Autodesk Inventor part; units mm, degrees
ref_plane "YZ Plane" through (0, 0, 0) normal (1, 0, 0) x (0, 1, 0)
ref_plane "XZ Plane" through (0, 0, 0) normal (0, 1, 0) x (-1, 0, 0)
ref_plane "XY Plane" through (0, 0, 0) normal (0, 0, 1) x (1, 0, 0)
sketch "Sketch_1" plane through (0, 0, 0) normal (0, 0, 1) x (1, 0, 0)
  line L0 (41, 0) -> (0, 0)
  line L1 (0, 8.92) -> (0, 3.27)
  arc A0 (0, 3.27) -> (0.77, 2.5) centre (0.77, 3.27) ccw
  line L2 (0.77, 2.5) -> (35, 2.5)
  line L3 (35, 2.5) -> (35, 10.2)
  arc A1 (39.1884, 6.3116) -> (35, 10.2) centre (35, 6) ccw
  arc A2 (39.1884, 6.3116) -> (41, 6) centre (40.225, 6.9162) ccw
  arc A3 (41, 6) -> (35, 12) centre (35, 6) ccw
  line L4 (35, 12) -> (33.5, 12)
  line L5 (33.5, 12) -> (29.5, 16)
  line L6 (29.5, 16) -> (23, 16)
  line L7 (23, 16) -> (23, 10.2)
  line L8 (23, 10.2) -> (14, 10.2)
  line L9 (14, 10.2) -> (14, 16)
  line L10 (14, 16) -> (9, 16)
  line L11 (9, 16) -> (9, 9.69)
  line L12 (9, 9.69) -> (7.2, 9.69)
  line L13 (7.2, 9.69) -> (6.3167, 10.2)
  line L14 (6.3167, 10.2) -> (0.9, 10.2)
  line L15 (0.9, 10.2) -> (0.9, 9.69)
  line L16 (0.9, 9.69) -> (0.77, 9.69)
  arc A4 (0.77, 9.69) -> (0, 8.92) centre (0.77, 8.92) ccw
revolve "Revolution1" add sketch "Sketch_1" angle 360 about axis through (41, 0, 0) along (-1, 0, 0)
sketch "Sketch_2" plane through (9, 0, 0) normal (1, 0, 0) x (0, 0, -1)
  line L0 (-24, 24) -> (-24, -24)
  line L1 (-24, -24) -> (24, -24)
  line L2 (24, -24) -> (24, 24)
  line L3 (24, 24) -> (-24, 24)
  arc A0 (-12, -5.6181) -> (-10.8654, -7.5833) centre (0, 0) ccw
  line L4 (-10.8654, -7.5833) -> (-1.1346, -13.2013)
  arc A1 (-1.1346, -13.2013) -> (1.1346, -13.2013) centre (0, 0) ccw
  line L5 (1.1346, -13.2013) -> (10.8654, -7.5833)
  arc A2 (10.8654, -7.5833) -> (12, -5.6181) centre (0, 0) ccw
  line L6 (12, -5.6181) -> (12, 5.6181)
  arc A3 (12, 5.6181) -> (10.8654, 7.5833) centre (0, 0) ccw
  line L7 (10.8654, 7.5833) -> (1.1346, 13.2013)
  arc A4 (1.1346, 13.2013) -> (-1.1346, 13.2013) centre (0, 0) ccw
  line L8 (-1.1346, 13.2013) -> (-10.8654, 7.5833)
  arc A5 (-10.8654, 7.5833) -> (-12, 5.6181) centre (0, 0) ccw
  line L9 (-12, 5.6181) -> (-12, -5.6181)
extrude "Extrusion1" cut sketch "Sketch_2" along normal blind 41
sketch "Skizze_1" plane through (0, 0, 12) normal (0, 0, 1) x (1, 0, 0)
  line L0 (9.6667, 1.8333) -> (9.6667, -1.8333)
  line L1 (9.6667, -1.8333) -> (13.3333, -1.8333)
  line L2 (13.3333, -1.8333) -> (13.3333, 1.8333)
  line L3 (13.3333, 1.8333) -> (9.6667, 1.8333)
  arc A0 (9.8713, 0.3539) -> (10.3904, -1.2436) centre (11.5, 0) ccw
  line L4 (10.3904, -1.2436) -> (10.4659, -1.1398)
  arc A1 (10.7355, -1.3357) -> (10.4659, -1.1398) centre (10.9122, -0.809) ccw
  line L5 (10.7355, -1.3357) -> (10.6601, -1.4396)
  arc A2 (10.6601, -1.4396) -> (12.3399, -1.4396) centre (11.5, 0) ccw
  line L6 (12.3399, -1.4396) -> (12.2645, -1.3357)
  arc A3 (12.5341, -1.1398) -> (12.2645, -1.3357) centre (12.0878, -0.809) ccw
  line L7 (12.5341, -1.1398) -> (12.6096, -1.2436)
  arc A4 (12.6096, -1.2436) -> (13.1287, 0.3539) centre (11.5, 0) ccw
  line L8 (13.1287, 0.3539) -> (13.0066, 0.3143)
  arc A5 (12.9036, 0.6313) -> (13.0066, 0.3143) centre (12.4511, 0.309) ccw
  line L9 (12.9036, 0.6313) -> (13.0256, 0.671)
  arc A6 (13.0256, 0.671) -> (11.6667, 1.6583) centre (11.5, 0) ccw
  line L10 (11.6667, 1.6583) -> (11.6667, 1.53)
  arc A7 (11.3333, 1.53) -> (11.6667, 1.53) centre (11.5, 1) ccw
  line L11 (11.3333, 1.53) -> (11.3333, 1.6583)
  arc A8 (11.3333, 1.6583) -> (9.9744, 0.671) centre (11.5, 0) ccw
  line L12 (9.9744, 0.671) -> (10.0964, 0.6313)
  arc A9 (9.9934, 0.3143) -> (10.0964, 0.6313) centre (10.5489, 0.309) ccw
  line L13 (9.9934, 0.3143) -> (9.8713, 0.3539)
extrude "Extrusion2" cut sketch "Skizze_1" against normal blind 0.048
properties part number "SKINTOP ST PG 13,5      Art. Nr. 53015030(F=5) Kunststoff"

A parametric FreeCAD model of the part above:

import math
import FreeCAD as App
import Part
import Sketcher

V = App.Vector
Q = App.Units.Quantity

doc = App.newDocument("Part")
body = doc.addObject("PartDesign::Body", "Body")

# Sketch on XY plane
sketch1 = body.newObject("Sketcher::SketchObject", "Sketch")
sketch1.AttachmentSupport = (doc.getObject("XY_Plane"), [""])
sketch1.MapMode = "FlatFace"
sketch1.addGeometry(Part.ArcOfCircle(Part.Circle(V(0.77, 8.92, 0), V(0, 0, 1), 0.77), math.radians(90), math.radians(180)), False)
sketch1.addGeometry(Part.LineSegment(V(0, 8.92, 0), V(0, 3.27, 0)), False)
sketch1.addGeometry(Part.ArcOfCircle(Part.Circle(V(0.77, 3.27, 0), V(0, 0, 1), 0.77), math.radians(180), math.radians(270)), False)
sketch1.addGeometry(Part.LineSegment(V(0.77, 2.5, 0), V(35, 2.5, 0)), False)
sketch1.addGeometry(Part.LineSegment(V(35, 2.5, 0), V(35, 10.2, 0)), False)
sketch1.addGeometry(Part.ArcOfCircle(Part.Circle(V(35, 6, 0), V(0, 0, 1), 4.2), math.radians(4), math.radians(90)), False)
sketch1.addGeometry(Part.ArcOfCircle(Part.Circle(V(40.23, 6.92, 0), V(0, 0, 1), 1.2), math.radians(-150), math.radians(-50)), False)
sketch1.addGeometry(Part.ArcOfCircle(Part.Circle(V(35, 6, 0), V(0, 0, 1), 6), math.radians(0), math.radians(90)), False)
sketch1.addGeometry(Part.LineSegment(V(35, 12, 0), V(33.5, 12, 0)), False)
sketch1.addGeometry(Part.LineSegment(V(33.5, 12, 0), V(29.5, 16, 0)), False)
sketch1.addGeometry(Part.LineSegment(V(29.5, 16, 0), V(23, 16, 0)), False)
sketch1.addGeometry(Part.LineSegment(V(23, 16, 0), V(23, 10.2, 0)), False)
sketch1.addGeometry(Part.LineSegment(V(23, 10.2, 0), V(14, 10.2, 0)), False)
sketch1.addGeometry(Part.LineSegment(V(14, 10.2, 0), V(14, 16, 0)), False)
sketch1.addGeometry(Part.LineSegment(V(14, 16, 0), V(9, 16, 0)), False)
sketch1.addGeometry(Part.LineSegment(V(9, 16, 0), V(9, 9.69, 0)), False)
sketch1.addGeometry(Part.LineSegment(V(9, 9.69, 0), V(7.2, 9.69, 0)), False)
sketch1.addGeometry(Part.LineSegment(V(7.2, 9.69, 0), V(6.32, 10.2, 0)), False)
sketch1.addGeometry(Part.LineSegment(V(6.32, 10.2, 0), V(0.9, 10.2, 0)), False)
sketch1.addGeometry(Part.LineSegment(V(0.9, 10.2, 0), V(0.9, 9.69, 0)), False)
sketch1.addGeometry(Part.LineSegment(V(0.9, 9.69, 0), V(0.77, 9.69, 0)), False)
sketch1.addConstraint(Sketcher.Constraint("Tangent", 0, 2, 1, 1))
sketch1.addConstraint(Sketcher.Constraint("Tangent", 1, 2, 2, 1))
sketch1.addConstraint(Sketcher.Constraint("Tangent", 2, 2, 3, 1))
sketch1.addConstraint(Sketcher.Constraint("Coincident", 3, 2, 4, 1))
sketch1.addConstraint(Sketcher.Constraint("Coincident", 4, 2, 5, 2))
sketch1.addConstraint(Sketcher.Constraint("Coincident", 5, 1, 6, 1))
sketch1.addConstraint(Sketcher.Constraint("Coincident", 6, 2, 7, 1))
sketch1.addConstraint(Sketcher.Constraint("Tangent", 7, 2, 8, 1))
sketch1.addConstraint(Sketcher.Constraint("Coincident", 8, 2, 9, 1))
sketch1.addConstraint(Sketcher.Constraint("Coincident", 9, 2, 10, 1))
sketch1.addConstraint(Sketcher.Constraint("Coincident", 10, 2, 11, 1))
sketch1.addConstraint(Sketcher.Constraint("Coincident", 11, 2, 12, 1))
sketch1.addConstraint(Sketcher.Constraint("Coincident", 12, 2, 13, 1))
sketch1.addConstraint(Sketcher.Constraint("Coincident", 13, 2, 14, 1))
sketch1.addConstraint(Sketcher.Constraint("Coincident", 14, 2, 15, 1))
sketch1.addConstraint(Sketcher.Constraint("Coincident", 15, 2, 16, 1))
sketch1.addConstraint(Sketcher.Constraint("Coincident", 16, 2, 17, 1))
sketch1.addConstraint(Sketcher.Constraint("Coincident", 17, 2, 18, 1))
sketch1.addConstraint(Sketcher.Constraint("Coincident", 18, 2, 19, 1))
sketch1.addConstraint(Sketcher.Constraint("Coincident", 19, 2, 20, 1))
sketch1.addConstraint(Sketcher.Constraint("Tangent", 20, 2, 0, 1))
sketch1.addConstraint(Sketcher.Constraint("Vertical", 1))
sketch1.addConstraint(Sketcher.Constraint("Horizontal", 3))
sketch1.addConstraint(Sketcher.Constraint("Vertical", 4))
sketch1.addConstraint(Sketcher.Constraint("Horizontal", 8))
sketch1.addConstraint(Sketcher.Constraint("Horizontal", 10))
sketch1.addConstraint(Sketcher.Constraint("Vertical", 11))
sketch1.addConstraint(Sketcher.Constraint("Horizontal", 12))
sketch1.addConstraint(Sketcher.Constraint("Vertical", 13))
sketch1.addConstraint(Sketcher.Constraint("Horizontal", 14))
sketch1.addConstraint(Sketcher.Constraint("Vertical", 15))
sketch1.addConstraint(Sketcher.Constraint("Horizontal", 16))
sketch1.addConstraint(Sketcher.Constraint("Horizontal", 18))
sketch1.addConstraint(Sketcher.Constraint("Vertical", 19))
sketch1.addConstraint(Sketcher.Constraint("Horizontal", 20))
sketch1.addConstraint(Sketcher.Constraint("Coincident", 7, 3, 5, 3))
sketch1.addConstraint(Sketcher.Constraint("Equal", 0, 2))
sketch1.addConstraint(Sketcher.Constraint("PointOnObject", 0, 2, -2))
sketch1.addConstraint(Sketcher.Constraint("Horizontal", 7, 3, 6, 2))
sketch1.addConstraint(Sketcher.Constraint("Horizontal", 4, 2, 11, 2))
sketch1.addConstraint(Sketcher.Constraint("Horizontal", 10, 2, 13, 2))
sketch1.addConstraint(Sketcher.Constraint("Horizontal", 12, 2, 17, 2))
sketch1.addConstraint(Sketcher.Constraint("Horizontal", 16, 2, 19, 2))
sketch1.addConstraint(Sketcher.Constraint("Vertical", 7, 3, 3, 2))
sketch1.addConstraint(Sketcher.Constraint("Radius", 7, Q("6 mm")))
sketch1.addConstraint(Sketcher.Constraint("Radius", 5, Q("4.2 mm")))
sketch1.addConstraint(Sketcher.Constraint("Radius", 6, Q("1.2 mm")))
sketch1.addConstraint(Sketcher.Constraint("DistanceX", 12, 2, 12, 1, Q("9 mm")))
sketch1.addConstraint(Sketcher.Constraint("DistanceX", 14, 2, 14, 1, Q("5 mm")))
sketch1.addConstraint(Sketcher.Constraint("Angle", 9, Q("135 deg")))
sketch1.addConstraint(Sketcher.Constraint("Radius", 0, Q("0.77 mm")))
sketch1.addConstraint(Sketcher.Constraint("DistanceX", 8, 2, 8, 1, Q("1.5 mm")))
sketch1.addConstraint(Sketcher.Constraint("DistanceX", 10, 2, 10, 1, Q("6.5 mm")))
sketch1.addConstraint(Sketcher.Constraint("DistanceX", 16, 2, 16, 1, Q("1.8 mm")))
sketch1.addConstraint(Sketcher.Constraint("DistanceY", 4, 1, 4, 2, Q("7.7 mm")))
sketch1.addConstraint(Sketcher.Constraint("DistanceY", 11, 2, 11, 1, Q("5.8 mm")))
sketch1.addConstraint(Sketcher.Constraint("DistanceX", -1, 1, 5, 3, Q("35 mm")))
sketch1.addConstraint(Sketcher.Constraint("DistanceY", -1, 1, 5, 3, Q("6 mm")))
sketch1.addConstraint(Sketcher.Constraint("DistanceX", 20, 2, 20, 1, Q("0.13 mm")))
sketch1.addConstraint(Sketcher.Constraint("DistanceY", 1, 2, 1, 1, Q("5.65 mm")))
sketch1.addConstraint(Sketcher.Constraint("Distance", 17, Q("1.02 mm")))
sketch1.addConstraint(Sketcher.Constraint("DistanceX", -1, 1, 6, 3, Q("40.225 mm")))
revolution = body.newObject("PartDesign::Revolution", "Revolution")
revolution.Profile = sketch1
revolution.ReferenceAxis = (sketch1, ["H_Axis"])
revolution.Angle = 360

# Sketch on YZ plane
sketch2 = body.newObject("Sketcher::SketchObject", "Sketch001")
sketch2.AttachmentSupport = (doc.getObject("YZ_Plane"), [""])
sketch2.MapMode = "FlatFace"
sketch2.AttachmentOffset = App.Placement(V(0, 0, 9), App.Rotation())
sketch2.addGeometry(Part.LineSegment(V(24, -24, 0), V(24, 24, 0)), False)
sketch2.addGeometry(Part.LineSegment(V(24, 24, 0), V(-24, 24, 0)), False)
sketch2.addGeometry(Part.LineSegment(V(-24, 24, 0), V(-24, -24, 0)), False)
sketch2.addGeometry(Part.LineSegment(V(-24, -24, 0), V(24, -24, 0)), False)
sketch2.addGeometry(Part.ArcOfCircle(Part.Circle(V(0, 0, 0), V(0, 0, 1), 13.3), math.radians(115.09), math.radians(124.91)), False)
sketch2.addGeometry(Part.LineSegment(V(-5.6, 12, 0), V(5.6, 12, 0)), False)
sketch2.addGeometry(Part.ArcOfCircle(Part.Circle(V(0, 0, 0), V(0, 0, 1), 13.2), math.radians(55.09), math.radians(64.91)), False)
sketch2.addGeometry(Part.LineSegment(V(7.6, 10.9, 0), V(13.2, 1.1, 0)), False)
sketch2.addGeometry(Part.ArcOfCircle(Part.Circle(V(0, 0, 0), V(0, 0, 1), 13.2), math.radians(-4.91), math.radians(4.91)), False)
sketch2.addGeometry(Part.LineSegment(V(13.2, -1.1, 0), V(7.6, -10.9, 0)), False)
sketch2.addGeometry(Part.ArcOfCircle(Part.Circle(V(0, 0, 0), V(0, 0, 1), 13.3), math.radians(-64.91), math.radians(-55.09)), False)
sketch2.addGeometry(Part.LineSegment(V(5.6, -12, 0), V(-5.6, -12, 0)), False)
sketch2.addGeometry(Part.ArcOfCircle(Part.Circle(V(0, 0, 0), V(0, 0, 1), 13.2), math.radians(-124.91), math.radians(-115.09)), False)
sketch2.addGeometry(Part.LineSegment(V(-7.6, -10.9, 0), V(-13.2, -1.1, 0)), False)
sketch2.addGeometry(Part.ArcOfCircle(Part.Circle(V(0, 0, 0), V(0, 0, 1), 13.2), math.radians(175.09), math.radians(184.91)), False)
sketch2.addGeometry(Part.LineSegment(V(-13.2, 1.1, 0), V(-7.6, 10.9, 0)), False)
sketch2.addConstraint(Sketcher.Constraint("Coincident", 0, 2, 1, 1))
sketch2.addConstraint(Sketcher.Constraint("Coincident", 1, 2, 2, 1))
sketch2.addConstraint(Sketcher.Constraint("Coincident", 2, 2, 3, 1))
sketch2.addConstraint(Sketcher.Constraint("Coincident", 3, 2, 0, 1))
sketch2.addConstraint(Sketcher.Constraint("Coincident", 4, 1, 5, 1))
sketch2.addConstraint(Sketcher.Constraint("Coincident", 5, 2, 6, 2))
sketch2.addConstraint(Sketcher.Constraint("Coincident", 6, 1, 7, 1))
sketch2.addConstraint(Sketcher.Constraint("Coincident", 7, 2, 8, 2))
sketch2.addConstraint(Sketcher.Constraint("Coincident", 8, 1, 9, 1))
sketch2.addConstraint(Sketcher.Constraint("Coincident", 9, 2, 10, 2))
sketch2.addConstraint(Sketcher.Constraint("Coincident", 10, 1, 11, 1))
sketch2.addConstraint(Sketcher.Constraint("Coincident", 11, 2, 12, 2))
sketch2.addConstraint(Sketcher.Constraint("Coincident", 12, 1, 13, 1))
sketch2.addConstraint(Sketcher.Constraint("Coincident", 13, 2, 14, 2))
sketch2.addConstraint(Sketcher.Constraint("Coincident", 14, 1, 15, 1))
sketch2.addConstraint(Sketcher.Constraint("Coincident", 15, 2, 4, 2))
sketch2.addConstraint(Sketcher.Constraint("Vertical", 0))
sketch2.addConstraint(Sketcher.Constraint("Horizontal", 1))
sketch2.addConstraint(Sketcher.Constraint("Vertical", 2))
sketch2.addConstraint(Sketcher.Constraint("Horizontal", 3))
sketch2.addConstraint(Sketcher.Constraint("Horizontal", 5))
sketch2.addConstraint(Sketcher.Constraint("Horizontal", 11))
sketch2.addConstraint(Sketcher.Constraint("Coincident", 8, 3, -1, 1))
sketch2.addConstraint(Sketcher.Constraint("Coincident", 14, 3, -1, 1))
sketch2.addConstraint(Sketcher.Constraint("Equal", 4, 10))
sketch2.addConstraint(Sketcher.Constraint("Equal", 6, 12))
sketch2.addConstraint(Sketcher.Constraint("Equal", 8, 14))
sketch2.addConstraint(Sketcher.Constraint("Symmetric", 4, 3, 10, 3, -1, 1))
sketch2.addConstraint(Sketcher.Constraint("Symmetric", 6, 3, 12, 3, -1, 1))
sketch2.addConstraint(Sketcher.Constraint("Symmetric", 0, 2, 2, 2, -1, 1))
sketch2.addConstraint(Sketcher.Constraint("Symmetric", 6, 3, 10, 3, -2))
sketch2.addConstraint(Sketcher.Constraint("Symmetric", 9, 2, 12, 1, -2))
sketch2.addConstraint(Sketcher.Constraint("Symmetric", 5, 2, 10, 1, -1))
sketch2.addConstraint(Sketcher.Constraint("Parallel", 7, 13))
sketch2.addConstraint(Sketcher.Constraint("Parallel", 9, 15))
sketch2.addConstraint(Sketcher.Constraint("Horizontal", 8, 1, 13, 2))
sketch2.addConstraint(Sketcher.Constraint("Horizontal", 7, 2, 14, 1))
sketch2.addConstraint(Sketcher.Constraint("Vertical", 7, 2, 8, 1))
sketch2.addConstraint(Sketcher.Constraint("Equal", 3, 0))
sketch2.addConstraint(Sketcher.Constraint("DistanceX", 1, 2, 1, 1, Q("48 mm")))
sketch2.addConstraint(Sketcher.Constraint("Angle", 7, Q("-60.0004 deg")))
sketch2.addConstraint(Sketcher.Constraint("Radius", 8, Q("13.25 mm")))
sketch2.addConstraint(Sketcher.Constraint("DistanceY", -1, 1, 4, 1, Q("12 mm")))
sketch2.addConstraint(Sketcher.Constraint("DistanceY", 9, 2, 7, 2, Q("12 mm")))
sketch2.addConstraint(Sketcher.Constraint("Radius", 4, Q("13.2516 mm")))
sketch2.addConstraint(Sketcher.Constraint("Radius", 6, Q("13.2484 mm")))
pocket1 = body.newObject("PartDesign::Pocket", "Pocket")
pocket1.Profile = sketch2
pocket1.Length = 41
pocket1.Reversed = True

# Sketch on XY plane
sketch3 = body.newObject("Sketcher::SketchObject", "Sketch002")
sketch3.AttachmentSupport = (doc.getObject("XY_Plane"), [""])
sketch3.MapMode = "FlatFace"
sketch3.AttachmentOffset = App.Placement(V(0, 0, 12), App.Rotation())
sketch3.addGeometry(Part.LineSegment(V(13.33, 1.83, 0), V(9.67, 1.83, 0)), False)
sketch3.addGeometry(Part.LineSegment(V(9.67, 1.83, 0), V(9.67, -1.83, 0)), False)
sketch3.addGeometry(Part.LineSegment(V(9.67, -1.83, 0), V(13.33, -1.83, 0)), False)
sketch3.addGeometry(Part.LineSegment(V(13.33, -1.83, 0), V(13.33, 1.83, 0)), False)
sketch3.addGeometry(Part.ArcOfCircle(Part.Circle(V(11.5, 0, 0), V(0, 0, 1), 1.67), math.radians(168), math.radians(228)), False)
sketch3.addGeometry(Part.LineSegment(V(9.87, 0.35, 0), V(9.99, 0.31, 0)), False)
sketch3.addGeometry(Part.ArcOfCircle(Part.Circle(V(10.55, 0.31, 0), V(0, 0, 1), 0.56), math.radians(179), math.radians(505)), False)
sketch3.addGeometry(Part.LineSegment(V(10.1, 0.63, 0), V(9.97, 0.67, 0)), False)
sketch3.addGeometry(Part.ArcOfCircle(Part.Circle(V(11.5, 0, 0), V(0, 0, 1), 1.67), math.radians(96), math.radians(156)), False)
sketch3.addGeometry(Part.LineSegment(V(11.33, 1.66, 0), V(11.33, 1.53, 0)), False)
sketch3.addGeometry(Part.ArcOfCircle(Part.Circle(V(11.5, 1, 0), V(0, 0, 1), 0.56), math.radians(107), math.radians(433)), False)
sketch3.addGeometry(Part.LineSegment(V(11.67, 1.53, 0), V(11.67, 1.66, 0)), False)
sketch3.addGeometry(Part.ArcOfCircle(Part.Circle(V(11.5, 0, 0), V(0, 0, 1), 1.67), math.radians(24), math.radians(84)), False)
sketch3.addGeometry(Part.LineSegment(V(13.03, 0.67, 0), V(12.9, 0.63, 0)), False)
sketch3.addGeometry(Part.ArcOfCircle(Part.Circle(V(12.45, 0.31, 0), V(0, 0, 1), 0.56), math.radians(35), math.radians(361)), False)
sketch3.addGeometry(Part.LineSegment(V(13.01, 0.31, 0), V(13.13, 0.35, 0)), False)
sketch3.addGeometry(Part.ArcOfCircle(Part.Circle(V(11.5, 0, 0), V(0, 0, 1), 1.67), math.radians(-48), math.radians(12)), False)
sketch3.addGeometry(Part.LineSegment(V(12.61, -1.24, 0), V(12.53, -1.14, 0)), False)
sketch3.addGeometry(Part.ArcOfCircle(Part.Circle(V(12.09, -0.81, 0), V(0, 0, 1), 0.56), math.radians(-37), math.radians(289)), False)
sketch3.addGeometry(Part.LineSegment(V(12.26, -1.34, 0), V(12.34, -1.44, 0)), False)
sketch3.addGeometry(Part.ArcOfCircle(Part.Circle(V(11.5, 0, 0), V(0, 0, 1), 1.67), math.radians(-120), math.radians(-60)), False)
sketch3.addGeometry(Part.LineSegment(V(10.66, -1.44, 0), V(10.74, -1.34, 0)), False)
sketch3.addGeometry(Part.ArcOfCircle(Part.Circle(V(10.91, -0.81, 0), V(0, 0, 1), 0.56), math.radians(-109), math.radians(217)), False)
sketch3.addGeometry(Part.LineSegment(V(10.47, -1.14, 0), V(10.39, -1.24, 0)), False)
sketch3.addConstraint(Sketcher.Constraint("Coincident", 0, 2, 1, 1))
sketch3.addConstraint(Sketcher.Constraint("Coincident", 1, 2, 2, 1))
sketch3.addConstraint(Sketcher.Constraint("Coincident", 2, 2, 3, 1))
sketch3.addConstraint(Sketcher.Constraint("Coincident", 3, 2, 0, 1))
sketch3.addConstraint(Sketcher.Constraint("Coincident", 4, 1, 5, 1))
sketch3.addConstraint(Sketcher.Constraint("Coincident", 5, 2, 6, 1))
sketch3.addConstraint(Sketcher.Constraint("Coincident", 6, 2, 7, 1))
sketch3.addConstraint(Sketcher.Constraint("Coincident", 7, 2, 8, 2))
sketch3.addConstraint(Sketcher.Constraint("Coincident", 8, 1, 9, 1))
sketch3.addConstraint(Sketcher.Constraint("Coincident", 9, 2, 10, 1))
sketch3.addConstraint(Sketcher.Constraint("Coincident", 10, 2, 11, 1))
sketch3.addConstraint(Sketcher.Constraint("Coincident", 11, 2, 12, 2))
sketch3.addConstraint(Sketcher.Constraint("Coincident", 12, 1, 13, 1))
sketch3.addConstraint(Sketcher.Constraint("Coincident", 13, 2, 14, 1))
sketch3.addConstraint(Sketcher.Constraint("Coincident", 14, 2, 15, 1))
sketch3.addConstraint(Sketcher.Constraint("Coincident", 15, 2, 16, 2))
sketch3.addConstraint(Sketcher.Constraint("Coincident", 16, 1, 17, 1))
sketch3.addConstraint(Sketcher.Constraint("Coincident", 17, 2, 18, 1))
sketch3.addConstraint(Sketcher.Constraint("Coincident", 18, 2, 19, 1))
sketch3.addConstraint(Sketcher.Constraint("Coincident", 19, 2, 20, 2))
sketch3.addConstraint(Sketcher.Constraint("Coincident", 20, 1, 21, 1))
sketch3.addConstraint(Sketcher.Constraint("Coincident", 21, 2, 22, 1))
sketch3.addConstraint(Sketcher.Constraint("Coincident", 22, 2, 23, 1))
sketch3.addConstraint(Sketcher.Constraint("Coincident", 23, 2, 4, 2))
sketch3.addConstraint(Sketcher.Constraint("Horizontal", 0))
sketch3.addConstraint(Sketcher.Constraint("Vertical", 1))
sketch3.addConstraint(Sketcher.Constraint("Horizontal", 2))
sketch3.addConstraint(Sketcher.Constraint("Vertical", 3))
sketch3.addConstraint(Sketcher.Constraint("Vertical", 9))
sketch3.addConstraint(Sketcher.Constraint("Vertical", 11))
sketch3.addConstraint(Sketcher.Constraint("Coincident", 8, 3, 4, 3))
sketch3.addConstraint(Sketcher.Constraint("Coincident", 12, 3, 4, 3))
sketch3.addConstraint(Sketcher.Constraint("Coincident", 16, 3, 4, 3))
sketch3.addConstraint(Sketcher.Constraint("Coincident", 20, 3, 4, 3))
sketch3.addConstraint(Sketcher.Constraint("Equal", 4, 8))
sketch3.addConstraint(Sketcher.Constraint("Equal", 6, 10))
sketch3.addConstraint(Sketcher.Constraint("Equal", 8, 12))
sketch3.addConstraint(Sketcher.Constraint("Equal", 10, 14))
sketch3.addConstraint(Sketcher.Constraint("Equal", 12, 16))
sketch3.addConstraint(Sketcher.Constraint("Equal", 14, 18))
sketch3.addConstraint(Sketcher.Constraint("Equal", 16, 20))
sketch3.addConstraint(Sketcher.Constraint("Equal", 18, 22))
sketch3.addConstraint(Sketcher.Constraint("PointOnObject", 4, 3, -1))
sketch3.addConstraint(Sketcher.Constraint("Horizontal", 6, 3, 14, 3))
sketch3.addConstraint(Sketcher.Constraint("Horizontal", 18, 3, 22, 3))
sketch3.addConstraint(Sketcher.Constraint("Horizontal", 9, 2, 10, 2))
sketch3.addConstraint(Sketcher.Constraint("Horizontal", 8, 1, 11, 2))
sketch3.addConstraint(Sketcher.Constraint("Horizontal", 7, 2, 12, 1))
sketch3.addConstraint(Sketcher.Constraint("Horizontal", 6, 2, 13, 2))
sketch3.addConstraint(Sketcher.Constraint("Horizontal", 5, 2, 14, 2))
sketch3.addConstraint(Sketcher.Constraint("Horizontal", 4, 1, 15, 2))
sketch3.addConstraint(Sketcher.Constraint("Horizontal", 19, 2, 20, 1))
sketch3.addConstraint(Sketcher.Constraint("Horizontal", 18, 2, 21, 2))
sketch3.addConstraint(Sketcher.Constraint("Horizontal", 17, 2, 22, 2))
sketch3.addConstraint(Sketcher.Constraint("Horizontal", 16, 1, 23, 2))
sketch3.addConstraint(Sketcher.Constraint("Equal", 2, 1))
sketch3.addConstraint(Sketcher.Constraint("Equal", 5, 7))
sketch3.addConstraint(Sketcher.Constraint("Equal", 7, 13))
sketch3.addConstraint(Sketcher.Constraint("Equal", 15, 17))
sketch3.addConstraint(Sketcher.Constraint("Equal", 17, 19))
sketch3.addConstraint(Sketcher.Constraint("Equal", 19, 21))
sketch3.addConstraint(Sketcher.Constraint("DistanceY", -1, 1, 10, 3, Q("1 mm")))
sketch3.addConstraint(Sketcher.Constraint("DistanceX", -1, 1, 4, 3, Q("11.5 mm")))
sketch3.addConstraint(Sketcher.Constraint("Angle", 5, Q("-17.9691 deg")))
sketch3.addConstraint(Sketcher.Constraint("Angle", 17, Q("126.0307 deg")))
sketch3.addConstraint(Sketcher.Constraint("Radius", 4, Q("1.6666 mm")))
sketch3.addConstraint(Sketcher.Constraint("Radius", 6, Q("0.5555 mm")))
sketch3.addConstraint(Sketcher.Constraint("DistanceY", -1, 1, 9, 2, Q("1.53 mm")))
sketch3.addConstraint(Sketcher.Constraint("DistanceX", -1, 1, 19, 2, Q("12.34 mm")))
sketch3.addConstraint(Sketcher.Constraint("DistanceX", 0, 2, 0, 1, Q("3.6666 mm")))
sketch3.addConstraint(Sketcher.Constraint("DistanceX", -1, 1, 6, 3, Q("10.549 mm")))
sketch3.addConstraint(Sketcher.Constraint("DistanceY", -1, 1, 6, 3, Q("0.309 mm")))
sketch3.addConstraint(Sketcher.Constraint("DistanceY", 18, 3, -1, 1, Q("0.809 mm")))
sketch3.addConstraint(Sketcher.Constraint("DistanceY", -1, 1, 4, 1, Q("0.354 mm")))
sketch3.addConstraint(Sketcher.Constraint("DistanceY", -1, 1, 7, 2, Q("0.671 mm")))
sketch3.addConstraint(Sketcher.Constraint("DistanceX", -1, 1, 17, 2, Q("12.534 mm")))
sketch3.addConstraint(Sketcher.Constraint("DistanceY", 6, 2, 0, 2, Q("1.202 mm")))
sketch3.addConstraint(Sketcher.Constraint("DistanceX", -1, 1, 0, 2, Q("9.6667 mm")))
pocket2 = body.newObject("PartDesign::Pocket", "Pocket001")
pocket2.Profile = sketch3
pocket2.Length = 0.048

doc.recompute()
